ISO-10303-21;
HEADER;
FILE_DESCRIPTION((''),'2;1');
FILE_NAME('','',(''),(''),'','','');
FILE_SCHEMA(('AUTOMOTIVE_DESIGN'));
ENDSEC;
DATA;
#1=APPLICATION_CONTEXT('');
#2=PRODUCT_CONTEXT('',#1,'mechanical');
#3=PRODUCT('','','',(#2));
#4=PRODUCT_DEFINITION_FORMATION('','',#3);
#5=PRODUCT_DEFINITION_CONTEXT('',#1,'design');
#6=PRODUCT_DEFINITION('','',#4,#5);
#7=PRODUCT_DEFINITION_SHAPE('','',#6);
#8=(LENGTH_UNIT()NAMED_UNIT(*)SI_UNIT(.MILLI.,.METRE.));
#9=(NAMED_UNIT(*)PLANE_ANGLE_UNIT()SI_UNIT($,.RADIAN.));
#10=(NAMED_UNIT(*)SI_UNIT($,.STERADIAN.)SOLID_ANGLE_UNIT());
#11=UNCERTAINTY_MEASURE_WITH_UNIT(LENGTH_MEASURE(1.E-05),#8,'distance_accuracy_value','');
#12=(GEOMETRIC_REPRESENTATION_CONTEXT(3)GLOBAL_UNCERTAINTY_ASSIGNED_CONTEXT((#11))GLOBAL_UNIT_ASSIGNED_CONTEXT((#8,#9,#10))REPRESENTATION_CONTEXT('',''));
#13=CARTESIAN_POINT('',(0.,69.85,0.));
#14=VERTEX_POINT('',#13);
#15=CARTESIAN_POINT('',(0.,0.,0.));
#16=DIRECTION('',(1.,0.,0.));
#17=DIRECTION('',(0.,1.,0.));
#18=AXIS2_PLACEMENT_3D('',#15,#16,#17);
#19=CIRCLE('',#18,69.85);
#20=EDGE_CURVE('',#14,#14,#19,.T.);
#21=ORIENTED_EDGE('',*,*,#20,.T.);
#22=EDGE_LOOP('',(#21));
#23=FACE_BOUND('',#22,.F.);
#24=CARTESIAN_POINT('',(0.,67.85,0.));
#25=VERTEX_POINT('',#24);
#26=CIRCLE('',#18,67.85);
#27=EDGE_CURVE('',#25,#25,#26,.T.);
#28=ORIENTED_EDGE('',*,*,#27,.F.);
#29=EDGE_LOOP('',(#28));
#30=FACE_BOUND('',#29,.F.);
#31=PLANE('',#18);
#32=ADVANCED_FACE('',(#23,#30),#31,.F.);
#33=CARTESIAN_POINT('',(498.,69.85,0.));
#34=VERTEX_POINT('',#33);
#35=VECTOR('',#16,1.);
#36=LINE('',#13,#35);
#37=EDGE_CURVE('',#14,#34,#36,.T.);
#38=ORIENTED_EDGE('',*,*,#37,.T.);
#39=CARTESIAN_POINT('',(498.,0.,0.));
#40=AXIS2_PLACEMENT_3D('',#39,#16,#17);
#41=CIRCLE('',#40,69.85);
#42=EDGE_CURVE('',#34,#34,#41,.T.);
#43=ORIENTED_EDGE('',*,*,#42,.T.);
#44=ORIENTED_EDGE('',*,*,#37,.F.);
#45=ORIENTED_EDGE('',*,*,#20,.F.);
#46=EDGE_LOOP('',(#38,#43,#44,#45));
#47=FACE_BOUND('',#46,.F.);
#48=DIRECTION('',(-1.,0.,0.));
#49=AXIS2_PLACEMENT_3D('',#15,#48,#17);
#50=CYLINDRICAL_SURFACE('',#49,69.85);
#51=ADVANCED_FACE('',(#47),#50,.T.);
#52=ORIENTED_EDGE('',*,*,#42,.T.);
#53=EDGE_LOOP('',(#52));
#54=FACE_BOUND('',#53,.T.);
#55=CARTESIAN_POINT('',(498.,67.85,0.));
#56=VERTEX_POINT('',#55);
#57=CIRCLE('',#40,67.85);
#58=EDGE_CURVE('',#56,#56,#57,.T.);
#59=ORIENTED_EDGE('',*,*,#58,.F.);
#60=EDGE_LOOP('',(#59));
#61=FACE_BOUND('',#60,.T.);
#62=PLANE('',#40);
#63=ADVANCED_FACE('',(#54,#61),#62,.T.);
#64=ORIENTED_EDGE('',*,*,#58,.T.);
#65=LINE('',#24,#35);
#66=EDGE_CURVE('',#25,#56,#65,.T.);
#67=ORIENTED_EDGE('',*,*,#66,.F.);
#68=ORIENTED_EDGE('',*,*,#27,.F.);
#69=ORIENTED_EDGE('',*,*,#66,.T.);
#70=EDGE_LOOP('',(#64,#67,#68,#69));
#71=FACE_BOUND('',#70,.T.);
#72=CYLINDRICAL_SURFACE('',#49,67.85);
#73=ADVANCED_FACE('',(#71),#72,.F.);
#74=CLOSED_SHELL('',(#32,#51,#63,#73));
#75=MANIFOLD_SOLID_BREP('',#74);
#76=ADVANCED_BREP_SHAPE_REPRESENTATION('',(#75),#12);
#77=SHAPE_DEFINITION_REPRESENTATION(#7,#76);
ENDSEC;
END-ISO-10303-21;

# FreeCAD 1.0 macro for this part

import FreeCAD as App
import Part
import Sketcher
from FreeCAD import Vector
Q = App.Units.Quantity

doc = App.newDocument("Part")
body = doc.addObject("PartDesign::Body", "Body")

sketch1 = body.newObject("Sketcher::SketchObject", "Sketch")
sketch1.AttachmentSupport = (doc.getObject("YZ_Plane"), [""])
sketch1.MapMode = "FlatFace"
sketch1.addGeometry(Part.Circle(Vector(0, 0, 0), Vector(0, 0, 1), 69.85), False)
sketch1.addGeometry(Part.Circle(Vector(0, 0, 0), Vector(0, 0, 1), 67.85), False)
sketch1.addConstraint(Sketcher.Constraint("Coincident", 0, 3, -1, 1))
sketch1.addConstraint(Sketcher.Constraint("Coincident", 1, 3, -1, 1))
sketch1.addConstraint(Sketcher.Constraint("Diameter", 0, Q("139.7 mm")))
sketch1.addConstraint(Sketcher.Constraint("Diameter", 1, Q("135.7 mm")))
pad1 = body.newObject("PartDesign::Pad", "Pad")
pad1.Profile = sketch1
pad1.Length = 498

doc.recompute()
